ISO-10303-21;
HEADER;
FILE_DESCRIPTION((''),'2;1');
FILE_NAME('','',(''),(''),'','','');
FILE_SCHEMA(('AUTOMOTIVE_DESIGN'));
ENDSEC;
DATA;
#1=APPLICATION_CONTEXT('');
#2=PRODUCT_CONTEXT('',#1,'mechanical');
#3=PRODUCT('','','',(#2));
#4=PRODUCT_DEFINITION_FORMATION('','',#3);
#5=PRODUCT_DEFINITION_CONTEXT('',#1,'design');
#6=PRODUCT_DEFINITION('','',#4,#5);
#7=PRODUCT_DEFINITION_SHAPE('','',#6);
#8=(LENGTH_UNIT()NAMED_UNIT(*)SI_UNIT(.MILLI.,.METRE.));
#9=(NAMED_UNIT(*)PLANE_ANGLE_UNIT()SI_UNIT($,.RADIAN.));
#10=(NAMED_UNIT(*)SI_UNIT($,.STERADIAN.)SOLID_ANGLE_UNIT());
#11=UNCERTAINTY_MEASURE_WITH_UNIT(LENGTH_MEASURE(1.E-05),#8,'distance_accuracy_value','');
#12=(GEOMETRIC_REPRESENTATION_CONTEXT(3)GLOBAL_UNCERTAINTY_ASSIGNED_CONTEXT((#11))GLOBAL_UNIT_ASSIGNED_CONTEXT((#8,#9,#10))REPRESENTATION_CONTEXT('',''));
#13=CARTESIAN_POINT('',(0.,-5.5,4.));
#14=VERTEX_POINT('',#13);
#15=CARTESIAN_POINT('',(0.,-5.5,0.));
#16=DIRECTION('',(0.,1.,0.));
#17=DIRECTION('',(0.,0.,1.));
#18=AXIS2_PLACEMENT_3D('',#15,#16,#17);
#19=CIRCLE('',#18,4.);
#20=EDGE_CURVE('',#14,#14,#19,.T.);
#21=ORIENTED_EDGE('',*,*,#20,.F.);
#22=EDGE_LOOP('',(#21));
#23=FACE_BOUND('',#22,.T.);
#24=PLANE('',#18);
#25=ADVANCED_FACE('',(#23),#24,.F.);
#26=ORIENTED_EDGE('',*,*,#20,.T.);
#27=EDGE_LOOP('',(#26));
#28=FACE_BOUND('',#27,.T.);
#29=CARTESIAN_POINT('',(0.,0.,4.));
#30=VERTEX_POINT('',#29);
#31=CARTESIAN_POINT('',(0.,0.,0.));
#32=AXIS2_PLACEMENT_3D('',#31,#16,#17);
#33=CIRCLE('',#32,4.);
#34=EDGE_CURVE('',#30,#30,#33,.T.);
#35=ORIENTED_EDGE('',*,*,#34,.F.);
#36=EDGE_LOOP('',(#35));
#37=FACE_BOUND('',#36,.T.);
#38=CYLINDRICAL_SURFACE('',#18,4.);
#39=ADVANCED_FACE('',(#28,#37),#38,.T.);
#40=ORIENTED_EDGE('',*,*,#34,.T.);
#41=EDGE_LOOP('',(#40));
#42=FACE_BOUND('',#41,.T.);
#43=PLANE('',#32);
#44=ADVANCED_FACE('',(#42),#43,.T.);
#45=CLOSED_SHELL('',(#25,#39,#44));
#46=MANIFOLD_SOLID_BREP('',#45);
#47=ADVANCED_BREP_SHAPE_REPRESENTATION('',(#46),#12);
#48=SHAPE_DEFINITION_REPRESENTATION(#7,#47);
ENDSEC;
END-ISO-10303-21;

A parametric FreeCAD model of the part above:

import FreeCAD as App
import Part
import Sketcher
from FreeCAD import Vector

doc = App.newDocument("Part")
body = doc.addObject("PartDesign::Body", "Body")

sketch1 = body.newObject("Sketcher::SketchObject", "Sketch")
sketch1.AttachmentSupport = (doc.getObject("XZ_Plane"), [""])
sketch1.MapMode = "FlatFace"
sketch1.addGeometry(Part.Circle(Vector(0, 0, 0), Vector(0, 0, 1), 4), False)
sketch1.addConstraint(Sketcher.Constraint("Coincident", 0, 3, -1, 1))
sketch1.addConstraint(Sketcher.Constraint("Diameter", 0, 8.0))
pad1 = body.newObject("PartDesign::Pad", "Pad")
pad1.Profile = sketch1
pad1.Length = 5.5

doc.recompute()
